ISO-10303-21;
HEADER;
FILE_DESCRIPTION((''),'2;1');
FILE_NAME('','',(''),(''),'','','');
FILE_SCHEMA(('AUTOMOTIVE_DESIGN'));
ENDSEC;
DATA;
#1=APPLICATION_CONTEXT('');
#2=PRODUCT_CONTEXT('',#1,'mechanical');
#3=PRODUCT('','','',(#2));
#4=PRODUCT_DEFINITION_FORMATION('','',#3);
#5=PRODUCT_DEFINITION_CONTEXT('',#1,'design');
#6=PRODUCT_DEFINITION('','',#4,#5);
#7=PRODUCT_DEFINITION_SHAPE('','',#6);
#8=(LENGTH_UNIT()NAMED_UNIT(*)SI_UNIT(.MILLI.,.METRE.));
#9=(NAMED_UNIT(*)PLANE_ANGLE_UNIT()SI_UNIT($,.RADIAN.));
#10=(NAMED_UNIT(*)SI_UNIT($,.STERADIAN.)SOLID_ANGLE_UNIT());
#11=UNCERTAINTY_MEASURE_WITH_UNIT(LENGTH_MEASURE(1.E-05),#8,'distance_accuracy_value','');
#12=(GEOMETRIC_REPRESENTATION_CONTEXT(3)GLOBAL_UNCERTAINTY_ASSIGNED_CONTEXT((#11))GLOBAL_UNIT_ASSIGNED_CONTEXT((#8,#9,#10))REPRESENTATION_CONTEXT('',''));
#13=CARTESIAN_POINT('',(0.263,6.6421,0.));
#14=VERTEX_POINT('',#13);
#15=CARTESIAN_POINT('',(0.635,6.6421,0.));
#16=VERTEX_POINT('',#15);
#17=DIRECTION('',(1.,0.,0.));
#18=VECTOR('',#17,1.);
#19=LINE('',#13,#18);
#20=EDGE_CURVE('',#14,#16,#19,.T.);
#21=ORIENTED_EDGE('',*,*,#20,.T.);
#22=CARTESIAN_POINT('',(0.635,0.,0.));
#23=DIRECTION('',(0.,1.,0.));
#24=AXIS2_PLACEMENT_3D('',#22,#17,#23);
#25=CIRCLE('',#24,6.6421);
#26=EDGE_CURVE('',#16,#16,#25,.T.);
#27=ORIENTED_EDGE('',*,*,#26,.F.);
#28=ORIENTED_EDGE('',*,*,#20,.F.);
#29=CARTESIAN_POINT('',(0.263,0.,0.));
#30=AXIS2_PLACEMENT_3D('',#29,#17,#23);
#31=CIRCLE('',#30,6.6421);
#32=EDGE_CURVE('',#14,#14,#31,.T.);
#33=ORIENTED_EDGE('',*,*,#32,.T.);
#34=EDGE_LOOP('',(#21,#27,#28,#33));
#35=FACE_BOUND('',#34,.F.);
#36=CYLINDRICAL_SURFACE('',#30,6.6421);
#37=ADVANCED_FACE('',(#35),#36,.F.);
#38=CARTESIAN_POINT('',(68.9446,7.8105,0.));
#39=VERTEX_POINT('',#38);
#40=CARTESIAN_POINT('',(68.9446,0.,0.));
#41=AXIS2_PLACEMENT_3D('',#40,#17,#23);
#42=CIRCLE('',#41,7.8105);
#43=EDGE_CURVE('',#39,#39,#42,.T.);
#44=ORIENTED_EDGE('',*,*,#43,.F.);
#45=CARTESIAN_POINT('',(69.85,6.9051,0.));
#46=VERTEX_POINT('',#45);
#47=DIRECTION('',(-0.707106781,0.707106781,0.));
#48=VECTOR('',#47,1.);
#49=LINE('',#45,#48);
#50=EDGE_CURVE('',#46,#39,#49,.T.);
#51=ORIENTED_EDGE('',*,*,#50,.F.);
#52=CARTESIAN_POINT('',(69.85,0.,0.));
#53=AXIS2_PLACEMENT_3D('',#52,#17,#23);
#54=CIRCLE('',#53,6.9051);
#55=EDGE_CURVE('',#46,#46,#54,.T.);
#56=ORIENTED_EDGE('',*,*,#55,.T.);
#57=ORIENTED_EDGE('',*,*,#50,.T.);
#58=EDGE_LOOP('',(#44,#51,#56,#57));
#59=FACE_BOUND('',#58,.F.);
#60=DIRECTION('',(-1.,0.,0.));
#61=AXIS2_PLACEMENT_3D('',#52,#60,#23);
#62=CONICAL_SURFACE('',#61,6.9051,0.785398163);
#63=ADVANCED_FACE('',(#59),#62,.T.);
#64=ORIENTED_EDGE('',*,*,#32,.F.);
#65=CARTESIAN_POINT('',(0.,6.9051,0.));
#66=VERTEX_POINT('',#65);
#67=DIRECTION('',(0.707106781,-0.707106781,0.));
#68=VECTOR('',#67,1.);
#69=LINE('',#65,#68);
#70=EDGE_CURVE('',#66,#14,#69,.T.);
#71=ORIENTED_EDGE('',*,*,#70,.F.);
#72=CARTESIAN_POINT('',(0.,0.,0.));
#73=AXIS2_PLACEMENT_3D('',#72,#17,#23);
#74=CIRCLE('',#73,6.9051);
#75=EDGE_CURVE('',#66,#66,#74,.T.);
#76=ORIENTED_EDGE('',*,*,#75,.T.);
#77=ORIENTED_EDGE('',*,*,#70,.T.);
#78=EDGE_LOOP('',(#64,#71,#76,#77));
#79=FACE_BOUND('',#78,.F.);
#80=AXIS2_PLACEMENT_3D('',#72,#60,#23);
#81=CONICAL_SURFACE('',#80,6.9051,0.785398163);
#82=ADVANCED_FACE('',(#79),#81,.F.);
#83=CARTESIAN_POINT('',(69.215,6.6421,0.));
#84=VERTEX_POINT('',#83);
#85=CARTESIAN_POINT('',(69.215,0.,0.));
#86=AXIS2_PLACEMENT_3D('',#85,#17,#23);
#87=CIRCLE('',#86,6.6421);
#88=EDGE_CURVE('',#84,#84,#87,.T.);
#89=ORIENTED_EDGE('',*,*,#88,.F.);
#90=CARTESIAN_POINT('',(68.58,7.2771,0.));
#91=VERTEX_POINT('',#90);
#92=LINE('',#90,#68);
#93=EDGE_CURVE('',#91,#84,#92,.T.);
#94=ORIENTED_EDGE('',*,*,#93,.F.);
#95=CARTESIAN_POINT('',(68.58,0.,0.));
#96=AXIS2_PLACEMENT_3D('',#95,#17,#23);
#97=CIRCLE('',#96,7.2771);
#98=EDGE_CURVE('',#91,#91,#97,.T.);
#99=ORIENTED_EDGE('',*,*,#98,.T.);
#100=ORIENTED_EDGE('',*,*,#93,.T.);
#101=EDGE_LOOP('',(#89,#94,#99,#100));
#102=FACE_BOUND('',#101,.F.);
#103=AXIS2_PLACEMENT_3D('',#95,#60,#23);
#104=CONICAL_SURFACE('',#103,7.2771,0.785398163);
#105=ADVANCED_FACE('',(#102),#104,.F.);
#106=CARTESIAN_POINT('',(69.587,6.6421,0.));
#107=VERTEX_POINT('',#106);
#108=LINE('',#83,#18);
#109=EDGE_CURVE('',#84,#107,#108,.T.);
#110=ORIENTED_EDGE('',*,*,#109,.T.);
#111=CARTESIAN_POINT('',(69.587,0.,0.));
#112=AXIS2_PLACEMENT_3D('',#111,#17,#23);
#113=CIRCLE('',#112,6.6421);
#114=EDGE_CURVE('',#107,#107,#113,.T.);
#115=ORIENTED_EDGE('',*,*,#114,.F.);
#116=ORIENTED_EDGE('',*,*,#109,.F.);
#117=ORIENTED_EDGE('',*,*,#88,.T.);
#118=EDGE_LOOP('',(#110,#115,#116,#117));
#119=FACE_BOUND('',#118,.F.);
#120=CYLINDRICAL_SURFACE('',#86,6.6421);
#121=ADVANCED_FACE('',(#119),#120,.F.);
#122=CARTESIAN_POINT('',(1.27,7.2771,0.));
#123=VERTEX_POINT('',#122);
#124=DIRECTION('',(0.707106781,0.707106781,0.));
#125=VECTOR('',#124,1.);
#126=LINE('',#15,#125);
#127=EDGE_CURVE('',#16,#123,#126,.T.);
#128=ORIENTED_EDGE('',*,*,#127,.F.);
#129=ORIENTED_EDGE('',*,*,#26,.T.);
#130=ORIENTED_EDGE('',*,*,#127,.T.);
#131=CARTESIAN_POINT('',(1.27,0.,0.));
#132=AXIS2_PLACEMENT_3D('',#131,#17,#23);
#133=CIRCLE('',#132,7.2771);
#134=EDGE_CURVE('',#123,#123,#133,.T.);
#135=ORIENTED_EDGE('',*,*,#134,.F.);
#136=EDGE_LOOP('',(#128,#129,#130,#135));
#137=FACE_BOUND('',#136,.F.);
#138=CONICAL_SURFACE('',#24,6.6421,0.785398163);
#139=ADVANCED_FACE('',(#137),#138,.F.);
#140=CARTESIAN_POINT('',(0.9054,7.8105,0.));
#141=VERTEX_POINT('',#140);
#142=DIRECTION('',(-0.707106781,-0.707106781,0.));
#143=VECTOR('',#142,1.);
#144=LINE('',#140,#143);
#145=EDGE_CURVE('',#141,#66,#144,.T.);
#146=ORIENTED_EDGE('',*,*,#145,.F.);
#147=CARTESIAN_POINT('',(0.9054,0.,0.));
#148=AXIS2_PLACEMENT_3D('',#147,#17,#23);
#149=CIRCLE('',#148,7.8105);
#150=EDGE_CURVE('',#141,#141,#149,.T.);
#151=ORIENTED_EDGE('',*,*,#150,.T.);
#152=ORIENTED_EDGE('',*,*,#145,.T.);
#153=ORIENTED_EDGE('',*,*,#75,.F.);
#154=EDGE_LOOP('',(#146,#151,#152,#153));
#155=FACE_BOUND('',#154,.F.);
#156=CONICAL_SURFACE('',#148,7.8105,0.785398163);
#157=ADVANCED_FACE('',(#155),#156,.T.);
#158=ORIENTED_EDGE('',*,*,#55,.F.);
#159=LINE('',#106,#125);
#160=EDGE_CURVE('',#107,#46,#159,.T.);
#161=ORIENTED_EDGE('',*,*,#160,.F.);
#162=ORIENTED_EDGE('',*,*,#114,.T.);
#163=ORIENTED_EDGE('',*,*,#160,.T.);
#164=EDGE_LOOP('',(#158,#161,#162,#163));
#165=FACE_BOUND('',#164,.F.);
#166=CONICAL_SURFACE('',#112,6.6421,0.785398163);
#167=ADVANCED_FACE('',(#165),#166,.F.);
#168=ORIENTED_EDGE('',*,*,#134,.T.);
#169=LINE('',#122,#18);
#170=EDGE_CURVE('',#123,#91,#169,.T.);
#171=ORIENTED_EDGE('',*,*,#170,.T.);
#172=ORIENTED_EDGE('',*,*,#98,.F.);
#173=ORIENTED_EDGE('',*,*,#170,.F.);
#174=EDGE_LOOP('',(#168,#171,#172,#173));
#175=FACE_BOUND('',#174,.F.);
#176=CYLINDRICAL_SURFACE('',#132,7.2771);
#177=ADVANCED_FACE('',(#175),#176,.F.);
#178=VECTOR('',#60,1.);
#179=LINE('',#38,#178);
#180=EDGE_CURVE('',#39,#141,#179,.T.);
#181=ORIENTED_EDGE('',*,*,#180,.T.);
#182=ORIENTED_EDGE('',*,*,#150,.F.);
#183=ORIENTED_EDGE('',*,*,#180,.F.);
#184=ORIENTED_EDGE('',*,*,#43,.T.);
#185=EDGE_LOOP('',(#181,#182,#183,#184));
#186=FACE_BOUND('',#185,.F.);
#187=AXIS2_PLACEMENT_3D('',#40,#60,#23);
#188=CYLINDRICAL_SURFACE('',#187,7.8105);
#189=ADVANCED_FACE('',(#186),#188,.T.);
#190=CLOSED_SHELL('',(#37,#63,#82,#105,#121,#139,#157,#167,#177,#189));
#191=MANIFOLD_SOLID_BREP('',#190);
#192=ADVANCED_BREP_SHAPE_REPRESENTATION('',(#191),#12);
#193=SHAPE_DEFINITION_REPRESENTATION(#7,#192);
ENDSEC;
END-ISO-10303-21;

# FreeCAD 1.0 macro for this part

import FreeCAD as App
import Part
import Sketcher
from FreeCAD import Vector
Q = App.Units.Quantity


def add_polygon(sketch, points):
    """Adds a closed chain of lines whose ends are joined by coincident constraints."""
    first, n = sketch.GeometryCount, len(points)
    for a, b in zip(points, points[1:] + points[:1]):
        sketch.addGeometry(Part.LineSegment(App.Vector(*a, 0), App.Vector(*b, 0)), False)
    for i in range(n):
        sketch.addConstraint(Sketcher.Constraint("Coincident", first + i, 2, first + (i + 1) % n, 1))

doc = App.newDocument("Part")
body = doc.addObject("PartDesign::Body", "Body")

# Sketch on XY plane
sketch1 = doc.addObject("Sketcher::SketchObject", "Sketch")
body.addObject(sketch1)
sketch1.AttachmentSupport = (doc.XY_Plane, [""])
sketch1.MapMode = "FlatFace"
add_polygon(sketch1, [(0.91, 7.81), (0, 6.91), (0.26, 6.64), (0.64, 6.64), (1.27, 7.28), (68.58, 7.28), (69.22, 6.64), (69.59, 6.64), (69.85, 6.91), (68.94, 7.81)])  # lines 0-9
sketch1.addConstraint(Sketcher.Constraint("Horizontal", 2))
sketch1.addConstraint(Sketcher.Constraint("Horizontal", 4))
sketch1.addConstraint(Sketcher.Constraint("Horizontal", 6))
sketch1.addConstraint(Sketcher.Constraint("Horizontal", 9))
sketch1.addConstraint(Sketcher.Constraint("PointOnObject", 0, 2, -2))
sketch1.addConstraint(Sketcher.Constraint("Perpendicular", 0, 1))
sketch1.addConstraint(Sketcher.Constraint("Perpendicular", 1, 3))
sketch1.addConstraint(Sketcher.Constraint("Perpendicular", 3, 5))
sketch1.addConstraint(Sketcher.Constraint("Perpendicular", 5, 7))
sketch1.addConstraint(Sketcher.Constraint("Perpendicular", 7, 8))
sketch1.addConstraint(Sketcher.Constraint("Horizontal", 2, 2, 5, 2))
sketch1.addConstraint(Sketcher.Constraint("Horizontal", 0, 2, 7, 2))
sketch1.addConstraint(Sketcher.Constraint("Equal", 2, 6))
sketch1.addConstraint(Sketcher.Constraint("Equal", 3, 5))
sketch1.addConstraint(Sketcher.Constraint("DistanceX", 4, 1, 4, 2, Q("2.65 in")))
sketch1.addConstraint(Sketcher.Constraint("DistanceX", -1, 1, 4, 2, Q("2.7 in")))
sketch1.addConstraint(Sketcher.Constraint("DistanceX", 2, 2, 5, 2, Q("2.7 in")))
sketch1.addConstraint(Sketcher.Constraint("DistanceX", 9, 2, 9, 1, Q("2.6787 in")))
sketch1.addConstraint(Sketcher.Constraint("DistanceY", 4, 2, 8, 2, Q("0.021 in")))
sketch1.addConstraint(Sketcher.Constraint("DistanceY", -1, 1, 1, 2, Q("0.2615 in")))
revolution = doc.addObject("PartDesign::Revolution", "Revolution")
body.addObject(revolution)
revolution.Profile = sketch1
revolution.ReferenceAxis = (sketch1, ["H_Axis"])
revolution.Angle = 360

doc.recompute()
